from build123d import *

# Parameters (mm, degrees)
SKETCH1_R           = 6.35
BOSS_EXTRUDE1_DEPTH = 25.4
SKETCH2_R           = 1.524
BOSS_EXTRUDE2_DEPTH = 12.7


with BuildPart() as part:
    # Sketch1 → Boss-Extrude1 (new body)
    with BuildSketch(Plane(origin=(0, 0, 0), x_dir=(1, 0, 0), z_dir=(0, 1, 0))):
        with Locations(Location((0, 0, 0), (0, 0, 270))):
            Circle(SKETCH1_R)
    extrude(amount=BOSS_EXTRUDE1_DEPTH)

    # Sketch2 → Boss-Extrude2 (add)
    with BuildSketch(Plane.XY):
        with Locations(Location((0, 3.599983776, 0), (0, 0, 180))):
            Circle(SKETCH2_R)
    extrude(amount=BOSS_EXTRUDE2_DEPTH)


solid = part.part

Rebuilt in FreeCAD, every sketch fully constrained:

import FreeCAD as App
import Part
import Sketcher
Q = App.Units.Quantity

doc = App.newDocument("Part")
body = doc.addObject("PartDesign::Body", "Body")

sketch1 = body.newObject("Sketcher::SketchObject", "Sketch")
sketch1.AttachmentSupport = (doc.getObject("XZ_Plane"), [""])
sketch1.MapMode = "FlatFace"
sketch1.addGeometry(Part.Circle(App.Vector(0, 0, 0), App.Vector(0, 0, 1), 6), False)
sketch1.addConstraint(Sketcher.Constraint("Coincident", 0, 3, -1, 1))
sketch1.addConstraint(Sketcher.Constraint("Diameter", 0, Q("0.5 in")))
pad1 = body.newObject("PartDesign::Pad", "Pad")
pad1.Profile = sketch1
pad1.Length = Q("1 in")
pad1.Reversed = True

sketch2 = body.newObject("Sketcher::SketchObject", "Sketch001")
sketch2.AttachmentSupport = (doc.getObject("XY_Plane"), [""])
sketch2.MapMode = "FlatFace"
sketch2.addGeometry(Part.Circle(App.Vector(0, 3.6, 0), App.Vector(0, 0, 1), 1.5), False)
sketch2.addConstraint(Sketcher.Constraint("PointOnObject", 0, 3, -2))
sketch2.addConstraint(Sketcher.Constraint("Diameter", 0, Q("0.12 in")))
sketch2.addConstraint(Sketcher.Constraint("DistanceY", -1, 1, 0, 3, Q("3.599984 mm")))
pad2 = body.newObject("PartDesign::Pad", "Pad001")
pad2.Profile = sketch2
pad2.Length = Q("0.5 in")

doc.recompute()
